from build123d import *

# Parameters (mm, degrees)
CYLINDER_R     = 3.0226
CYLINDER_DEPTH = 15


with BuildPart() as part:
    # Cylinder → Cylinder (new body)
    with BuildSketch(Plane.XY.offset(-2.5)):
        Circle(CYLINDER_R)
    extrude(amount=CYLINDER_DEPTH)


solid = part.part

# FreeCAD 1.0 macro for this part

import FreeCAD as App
import Part
import Sketcher

V = App.Vector
Q = App.Units.Quantity

doc = App.newDocument("Part")
params = doc.addObject("Spreadsheet::Sheet", "Params")
for row, (alias, value) in enumerate([
    ("pad1_length", "15 mm"),
], start=1):
    params.set(f"A{row}", alias)
    params.set(f"B{row}", "=" + value)
    params.setAlias(f"B{row}", alias)

body = doc.addObject("PartDesign::Body", "Body")

sketch1 = body.newObject("Sketcher::SketchObject", "Sketch")
sketch1.AttachmentSupport = (doc.getObject("XY_Plane"), [""])
sketch1.MapMode = "FlatFace"
sketch1.AttachmentOffset = App.Placement(V(0, 0, -2.5), App.Rotation())
sketch1.addGeometry(Part.Circle(V(0, 0, 0), V(0, 0, 1), 3), False)
sketch1.addConstraint([
    Sketcher.Constraint("Coincident", 0, 3, -1, 1),
    Sketcher.Constraint("Diameter", 0, Q("6.0452 mm")),
])
pad1 = body.newObject("PartDesign::Pad", "Pad")
pad1.Profile = sketch1
pad1.setExpression("Length", "Params.pad1_length")

doc.recompute()
